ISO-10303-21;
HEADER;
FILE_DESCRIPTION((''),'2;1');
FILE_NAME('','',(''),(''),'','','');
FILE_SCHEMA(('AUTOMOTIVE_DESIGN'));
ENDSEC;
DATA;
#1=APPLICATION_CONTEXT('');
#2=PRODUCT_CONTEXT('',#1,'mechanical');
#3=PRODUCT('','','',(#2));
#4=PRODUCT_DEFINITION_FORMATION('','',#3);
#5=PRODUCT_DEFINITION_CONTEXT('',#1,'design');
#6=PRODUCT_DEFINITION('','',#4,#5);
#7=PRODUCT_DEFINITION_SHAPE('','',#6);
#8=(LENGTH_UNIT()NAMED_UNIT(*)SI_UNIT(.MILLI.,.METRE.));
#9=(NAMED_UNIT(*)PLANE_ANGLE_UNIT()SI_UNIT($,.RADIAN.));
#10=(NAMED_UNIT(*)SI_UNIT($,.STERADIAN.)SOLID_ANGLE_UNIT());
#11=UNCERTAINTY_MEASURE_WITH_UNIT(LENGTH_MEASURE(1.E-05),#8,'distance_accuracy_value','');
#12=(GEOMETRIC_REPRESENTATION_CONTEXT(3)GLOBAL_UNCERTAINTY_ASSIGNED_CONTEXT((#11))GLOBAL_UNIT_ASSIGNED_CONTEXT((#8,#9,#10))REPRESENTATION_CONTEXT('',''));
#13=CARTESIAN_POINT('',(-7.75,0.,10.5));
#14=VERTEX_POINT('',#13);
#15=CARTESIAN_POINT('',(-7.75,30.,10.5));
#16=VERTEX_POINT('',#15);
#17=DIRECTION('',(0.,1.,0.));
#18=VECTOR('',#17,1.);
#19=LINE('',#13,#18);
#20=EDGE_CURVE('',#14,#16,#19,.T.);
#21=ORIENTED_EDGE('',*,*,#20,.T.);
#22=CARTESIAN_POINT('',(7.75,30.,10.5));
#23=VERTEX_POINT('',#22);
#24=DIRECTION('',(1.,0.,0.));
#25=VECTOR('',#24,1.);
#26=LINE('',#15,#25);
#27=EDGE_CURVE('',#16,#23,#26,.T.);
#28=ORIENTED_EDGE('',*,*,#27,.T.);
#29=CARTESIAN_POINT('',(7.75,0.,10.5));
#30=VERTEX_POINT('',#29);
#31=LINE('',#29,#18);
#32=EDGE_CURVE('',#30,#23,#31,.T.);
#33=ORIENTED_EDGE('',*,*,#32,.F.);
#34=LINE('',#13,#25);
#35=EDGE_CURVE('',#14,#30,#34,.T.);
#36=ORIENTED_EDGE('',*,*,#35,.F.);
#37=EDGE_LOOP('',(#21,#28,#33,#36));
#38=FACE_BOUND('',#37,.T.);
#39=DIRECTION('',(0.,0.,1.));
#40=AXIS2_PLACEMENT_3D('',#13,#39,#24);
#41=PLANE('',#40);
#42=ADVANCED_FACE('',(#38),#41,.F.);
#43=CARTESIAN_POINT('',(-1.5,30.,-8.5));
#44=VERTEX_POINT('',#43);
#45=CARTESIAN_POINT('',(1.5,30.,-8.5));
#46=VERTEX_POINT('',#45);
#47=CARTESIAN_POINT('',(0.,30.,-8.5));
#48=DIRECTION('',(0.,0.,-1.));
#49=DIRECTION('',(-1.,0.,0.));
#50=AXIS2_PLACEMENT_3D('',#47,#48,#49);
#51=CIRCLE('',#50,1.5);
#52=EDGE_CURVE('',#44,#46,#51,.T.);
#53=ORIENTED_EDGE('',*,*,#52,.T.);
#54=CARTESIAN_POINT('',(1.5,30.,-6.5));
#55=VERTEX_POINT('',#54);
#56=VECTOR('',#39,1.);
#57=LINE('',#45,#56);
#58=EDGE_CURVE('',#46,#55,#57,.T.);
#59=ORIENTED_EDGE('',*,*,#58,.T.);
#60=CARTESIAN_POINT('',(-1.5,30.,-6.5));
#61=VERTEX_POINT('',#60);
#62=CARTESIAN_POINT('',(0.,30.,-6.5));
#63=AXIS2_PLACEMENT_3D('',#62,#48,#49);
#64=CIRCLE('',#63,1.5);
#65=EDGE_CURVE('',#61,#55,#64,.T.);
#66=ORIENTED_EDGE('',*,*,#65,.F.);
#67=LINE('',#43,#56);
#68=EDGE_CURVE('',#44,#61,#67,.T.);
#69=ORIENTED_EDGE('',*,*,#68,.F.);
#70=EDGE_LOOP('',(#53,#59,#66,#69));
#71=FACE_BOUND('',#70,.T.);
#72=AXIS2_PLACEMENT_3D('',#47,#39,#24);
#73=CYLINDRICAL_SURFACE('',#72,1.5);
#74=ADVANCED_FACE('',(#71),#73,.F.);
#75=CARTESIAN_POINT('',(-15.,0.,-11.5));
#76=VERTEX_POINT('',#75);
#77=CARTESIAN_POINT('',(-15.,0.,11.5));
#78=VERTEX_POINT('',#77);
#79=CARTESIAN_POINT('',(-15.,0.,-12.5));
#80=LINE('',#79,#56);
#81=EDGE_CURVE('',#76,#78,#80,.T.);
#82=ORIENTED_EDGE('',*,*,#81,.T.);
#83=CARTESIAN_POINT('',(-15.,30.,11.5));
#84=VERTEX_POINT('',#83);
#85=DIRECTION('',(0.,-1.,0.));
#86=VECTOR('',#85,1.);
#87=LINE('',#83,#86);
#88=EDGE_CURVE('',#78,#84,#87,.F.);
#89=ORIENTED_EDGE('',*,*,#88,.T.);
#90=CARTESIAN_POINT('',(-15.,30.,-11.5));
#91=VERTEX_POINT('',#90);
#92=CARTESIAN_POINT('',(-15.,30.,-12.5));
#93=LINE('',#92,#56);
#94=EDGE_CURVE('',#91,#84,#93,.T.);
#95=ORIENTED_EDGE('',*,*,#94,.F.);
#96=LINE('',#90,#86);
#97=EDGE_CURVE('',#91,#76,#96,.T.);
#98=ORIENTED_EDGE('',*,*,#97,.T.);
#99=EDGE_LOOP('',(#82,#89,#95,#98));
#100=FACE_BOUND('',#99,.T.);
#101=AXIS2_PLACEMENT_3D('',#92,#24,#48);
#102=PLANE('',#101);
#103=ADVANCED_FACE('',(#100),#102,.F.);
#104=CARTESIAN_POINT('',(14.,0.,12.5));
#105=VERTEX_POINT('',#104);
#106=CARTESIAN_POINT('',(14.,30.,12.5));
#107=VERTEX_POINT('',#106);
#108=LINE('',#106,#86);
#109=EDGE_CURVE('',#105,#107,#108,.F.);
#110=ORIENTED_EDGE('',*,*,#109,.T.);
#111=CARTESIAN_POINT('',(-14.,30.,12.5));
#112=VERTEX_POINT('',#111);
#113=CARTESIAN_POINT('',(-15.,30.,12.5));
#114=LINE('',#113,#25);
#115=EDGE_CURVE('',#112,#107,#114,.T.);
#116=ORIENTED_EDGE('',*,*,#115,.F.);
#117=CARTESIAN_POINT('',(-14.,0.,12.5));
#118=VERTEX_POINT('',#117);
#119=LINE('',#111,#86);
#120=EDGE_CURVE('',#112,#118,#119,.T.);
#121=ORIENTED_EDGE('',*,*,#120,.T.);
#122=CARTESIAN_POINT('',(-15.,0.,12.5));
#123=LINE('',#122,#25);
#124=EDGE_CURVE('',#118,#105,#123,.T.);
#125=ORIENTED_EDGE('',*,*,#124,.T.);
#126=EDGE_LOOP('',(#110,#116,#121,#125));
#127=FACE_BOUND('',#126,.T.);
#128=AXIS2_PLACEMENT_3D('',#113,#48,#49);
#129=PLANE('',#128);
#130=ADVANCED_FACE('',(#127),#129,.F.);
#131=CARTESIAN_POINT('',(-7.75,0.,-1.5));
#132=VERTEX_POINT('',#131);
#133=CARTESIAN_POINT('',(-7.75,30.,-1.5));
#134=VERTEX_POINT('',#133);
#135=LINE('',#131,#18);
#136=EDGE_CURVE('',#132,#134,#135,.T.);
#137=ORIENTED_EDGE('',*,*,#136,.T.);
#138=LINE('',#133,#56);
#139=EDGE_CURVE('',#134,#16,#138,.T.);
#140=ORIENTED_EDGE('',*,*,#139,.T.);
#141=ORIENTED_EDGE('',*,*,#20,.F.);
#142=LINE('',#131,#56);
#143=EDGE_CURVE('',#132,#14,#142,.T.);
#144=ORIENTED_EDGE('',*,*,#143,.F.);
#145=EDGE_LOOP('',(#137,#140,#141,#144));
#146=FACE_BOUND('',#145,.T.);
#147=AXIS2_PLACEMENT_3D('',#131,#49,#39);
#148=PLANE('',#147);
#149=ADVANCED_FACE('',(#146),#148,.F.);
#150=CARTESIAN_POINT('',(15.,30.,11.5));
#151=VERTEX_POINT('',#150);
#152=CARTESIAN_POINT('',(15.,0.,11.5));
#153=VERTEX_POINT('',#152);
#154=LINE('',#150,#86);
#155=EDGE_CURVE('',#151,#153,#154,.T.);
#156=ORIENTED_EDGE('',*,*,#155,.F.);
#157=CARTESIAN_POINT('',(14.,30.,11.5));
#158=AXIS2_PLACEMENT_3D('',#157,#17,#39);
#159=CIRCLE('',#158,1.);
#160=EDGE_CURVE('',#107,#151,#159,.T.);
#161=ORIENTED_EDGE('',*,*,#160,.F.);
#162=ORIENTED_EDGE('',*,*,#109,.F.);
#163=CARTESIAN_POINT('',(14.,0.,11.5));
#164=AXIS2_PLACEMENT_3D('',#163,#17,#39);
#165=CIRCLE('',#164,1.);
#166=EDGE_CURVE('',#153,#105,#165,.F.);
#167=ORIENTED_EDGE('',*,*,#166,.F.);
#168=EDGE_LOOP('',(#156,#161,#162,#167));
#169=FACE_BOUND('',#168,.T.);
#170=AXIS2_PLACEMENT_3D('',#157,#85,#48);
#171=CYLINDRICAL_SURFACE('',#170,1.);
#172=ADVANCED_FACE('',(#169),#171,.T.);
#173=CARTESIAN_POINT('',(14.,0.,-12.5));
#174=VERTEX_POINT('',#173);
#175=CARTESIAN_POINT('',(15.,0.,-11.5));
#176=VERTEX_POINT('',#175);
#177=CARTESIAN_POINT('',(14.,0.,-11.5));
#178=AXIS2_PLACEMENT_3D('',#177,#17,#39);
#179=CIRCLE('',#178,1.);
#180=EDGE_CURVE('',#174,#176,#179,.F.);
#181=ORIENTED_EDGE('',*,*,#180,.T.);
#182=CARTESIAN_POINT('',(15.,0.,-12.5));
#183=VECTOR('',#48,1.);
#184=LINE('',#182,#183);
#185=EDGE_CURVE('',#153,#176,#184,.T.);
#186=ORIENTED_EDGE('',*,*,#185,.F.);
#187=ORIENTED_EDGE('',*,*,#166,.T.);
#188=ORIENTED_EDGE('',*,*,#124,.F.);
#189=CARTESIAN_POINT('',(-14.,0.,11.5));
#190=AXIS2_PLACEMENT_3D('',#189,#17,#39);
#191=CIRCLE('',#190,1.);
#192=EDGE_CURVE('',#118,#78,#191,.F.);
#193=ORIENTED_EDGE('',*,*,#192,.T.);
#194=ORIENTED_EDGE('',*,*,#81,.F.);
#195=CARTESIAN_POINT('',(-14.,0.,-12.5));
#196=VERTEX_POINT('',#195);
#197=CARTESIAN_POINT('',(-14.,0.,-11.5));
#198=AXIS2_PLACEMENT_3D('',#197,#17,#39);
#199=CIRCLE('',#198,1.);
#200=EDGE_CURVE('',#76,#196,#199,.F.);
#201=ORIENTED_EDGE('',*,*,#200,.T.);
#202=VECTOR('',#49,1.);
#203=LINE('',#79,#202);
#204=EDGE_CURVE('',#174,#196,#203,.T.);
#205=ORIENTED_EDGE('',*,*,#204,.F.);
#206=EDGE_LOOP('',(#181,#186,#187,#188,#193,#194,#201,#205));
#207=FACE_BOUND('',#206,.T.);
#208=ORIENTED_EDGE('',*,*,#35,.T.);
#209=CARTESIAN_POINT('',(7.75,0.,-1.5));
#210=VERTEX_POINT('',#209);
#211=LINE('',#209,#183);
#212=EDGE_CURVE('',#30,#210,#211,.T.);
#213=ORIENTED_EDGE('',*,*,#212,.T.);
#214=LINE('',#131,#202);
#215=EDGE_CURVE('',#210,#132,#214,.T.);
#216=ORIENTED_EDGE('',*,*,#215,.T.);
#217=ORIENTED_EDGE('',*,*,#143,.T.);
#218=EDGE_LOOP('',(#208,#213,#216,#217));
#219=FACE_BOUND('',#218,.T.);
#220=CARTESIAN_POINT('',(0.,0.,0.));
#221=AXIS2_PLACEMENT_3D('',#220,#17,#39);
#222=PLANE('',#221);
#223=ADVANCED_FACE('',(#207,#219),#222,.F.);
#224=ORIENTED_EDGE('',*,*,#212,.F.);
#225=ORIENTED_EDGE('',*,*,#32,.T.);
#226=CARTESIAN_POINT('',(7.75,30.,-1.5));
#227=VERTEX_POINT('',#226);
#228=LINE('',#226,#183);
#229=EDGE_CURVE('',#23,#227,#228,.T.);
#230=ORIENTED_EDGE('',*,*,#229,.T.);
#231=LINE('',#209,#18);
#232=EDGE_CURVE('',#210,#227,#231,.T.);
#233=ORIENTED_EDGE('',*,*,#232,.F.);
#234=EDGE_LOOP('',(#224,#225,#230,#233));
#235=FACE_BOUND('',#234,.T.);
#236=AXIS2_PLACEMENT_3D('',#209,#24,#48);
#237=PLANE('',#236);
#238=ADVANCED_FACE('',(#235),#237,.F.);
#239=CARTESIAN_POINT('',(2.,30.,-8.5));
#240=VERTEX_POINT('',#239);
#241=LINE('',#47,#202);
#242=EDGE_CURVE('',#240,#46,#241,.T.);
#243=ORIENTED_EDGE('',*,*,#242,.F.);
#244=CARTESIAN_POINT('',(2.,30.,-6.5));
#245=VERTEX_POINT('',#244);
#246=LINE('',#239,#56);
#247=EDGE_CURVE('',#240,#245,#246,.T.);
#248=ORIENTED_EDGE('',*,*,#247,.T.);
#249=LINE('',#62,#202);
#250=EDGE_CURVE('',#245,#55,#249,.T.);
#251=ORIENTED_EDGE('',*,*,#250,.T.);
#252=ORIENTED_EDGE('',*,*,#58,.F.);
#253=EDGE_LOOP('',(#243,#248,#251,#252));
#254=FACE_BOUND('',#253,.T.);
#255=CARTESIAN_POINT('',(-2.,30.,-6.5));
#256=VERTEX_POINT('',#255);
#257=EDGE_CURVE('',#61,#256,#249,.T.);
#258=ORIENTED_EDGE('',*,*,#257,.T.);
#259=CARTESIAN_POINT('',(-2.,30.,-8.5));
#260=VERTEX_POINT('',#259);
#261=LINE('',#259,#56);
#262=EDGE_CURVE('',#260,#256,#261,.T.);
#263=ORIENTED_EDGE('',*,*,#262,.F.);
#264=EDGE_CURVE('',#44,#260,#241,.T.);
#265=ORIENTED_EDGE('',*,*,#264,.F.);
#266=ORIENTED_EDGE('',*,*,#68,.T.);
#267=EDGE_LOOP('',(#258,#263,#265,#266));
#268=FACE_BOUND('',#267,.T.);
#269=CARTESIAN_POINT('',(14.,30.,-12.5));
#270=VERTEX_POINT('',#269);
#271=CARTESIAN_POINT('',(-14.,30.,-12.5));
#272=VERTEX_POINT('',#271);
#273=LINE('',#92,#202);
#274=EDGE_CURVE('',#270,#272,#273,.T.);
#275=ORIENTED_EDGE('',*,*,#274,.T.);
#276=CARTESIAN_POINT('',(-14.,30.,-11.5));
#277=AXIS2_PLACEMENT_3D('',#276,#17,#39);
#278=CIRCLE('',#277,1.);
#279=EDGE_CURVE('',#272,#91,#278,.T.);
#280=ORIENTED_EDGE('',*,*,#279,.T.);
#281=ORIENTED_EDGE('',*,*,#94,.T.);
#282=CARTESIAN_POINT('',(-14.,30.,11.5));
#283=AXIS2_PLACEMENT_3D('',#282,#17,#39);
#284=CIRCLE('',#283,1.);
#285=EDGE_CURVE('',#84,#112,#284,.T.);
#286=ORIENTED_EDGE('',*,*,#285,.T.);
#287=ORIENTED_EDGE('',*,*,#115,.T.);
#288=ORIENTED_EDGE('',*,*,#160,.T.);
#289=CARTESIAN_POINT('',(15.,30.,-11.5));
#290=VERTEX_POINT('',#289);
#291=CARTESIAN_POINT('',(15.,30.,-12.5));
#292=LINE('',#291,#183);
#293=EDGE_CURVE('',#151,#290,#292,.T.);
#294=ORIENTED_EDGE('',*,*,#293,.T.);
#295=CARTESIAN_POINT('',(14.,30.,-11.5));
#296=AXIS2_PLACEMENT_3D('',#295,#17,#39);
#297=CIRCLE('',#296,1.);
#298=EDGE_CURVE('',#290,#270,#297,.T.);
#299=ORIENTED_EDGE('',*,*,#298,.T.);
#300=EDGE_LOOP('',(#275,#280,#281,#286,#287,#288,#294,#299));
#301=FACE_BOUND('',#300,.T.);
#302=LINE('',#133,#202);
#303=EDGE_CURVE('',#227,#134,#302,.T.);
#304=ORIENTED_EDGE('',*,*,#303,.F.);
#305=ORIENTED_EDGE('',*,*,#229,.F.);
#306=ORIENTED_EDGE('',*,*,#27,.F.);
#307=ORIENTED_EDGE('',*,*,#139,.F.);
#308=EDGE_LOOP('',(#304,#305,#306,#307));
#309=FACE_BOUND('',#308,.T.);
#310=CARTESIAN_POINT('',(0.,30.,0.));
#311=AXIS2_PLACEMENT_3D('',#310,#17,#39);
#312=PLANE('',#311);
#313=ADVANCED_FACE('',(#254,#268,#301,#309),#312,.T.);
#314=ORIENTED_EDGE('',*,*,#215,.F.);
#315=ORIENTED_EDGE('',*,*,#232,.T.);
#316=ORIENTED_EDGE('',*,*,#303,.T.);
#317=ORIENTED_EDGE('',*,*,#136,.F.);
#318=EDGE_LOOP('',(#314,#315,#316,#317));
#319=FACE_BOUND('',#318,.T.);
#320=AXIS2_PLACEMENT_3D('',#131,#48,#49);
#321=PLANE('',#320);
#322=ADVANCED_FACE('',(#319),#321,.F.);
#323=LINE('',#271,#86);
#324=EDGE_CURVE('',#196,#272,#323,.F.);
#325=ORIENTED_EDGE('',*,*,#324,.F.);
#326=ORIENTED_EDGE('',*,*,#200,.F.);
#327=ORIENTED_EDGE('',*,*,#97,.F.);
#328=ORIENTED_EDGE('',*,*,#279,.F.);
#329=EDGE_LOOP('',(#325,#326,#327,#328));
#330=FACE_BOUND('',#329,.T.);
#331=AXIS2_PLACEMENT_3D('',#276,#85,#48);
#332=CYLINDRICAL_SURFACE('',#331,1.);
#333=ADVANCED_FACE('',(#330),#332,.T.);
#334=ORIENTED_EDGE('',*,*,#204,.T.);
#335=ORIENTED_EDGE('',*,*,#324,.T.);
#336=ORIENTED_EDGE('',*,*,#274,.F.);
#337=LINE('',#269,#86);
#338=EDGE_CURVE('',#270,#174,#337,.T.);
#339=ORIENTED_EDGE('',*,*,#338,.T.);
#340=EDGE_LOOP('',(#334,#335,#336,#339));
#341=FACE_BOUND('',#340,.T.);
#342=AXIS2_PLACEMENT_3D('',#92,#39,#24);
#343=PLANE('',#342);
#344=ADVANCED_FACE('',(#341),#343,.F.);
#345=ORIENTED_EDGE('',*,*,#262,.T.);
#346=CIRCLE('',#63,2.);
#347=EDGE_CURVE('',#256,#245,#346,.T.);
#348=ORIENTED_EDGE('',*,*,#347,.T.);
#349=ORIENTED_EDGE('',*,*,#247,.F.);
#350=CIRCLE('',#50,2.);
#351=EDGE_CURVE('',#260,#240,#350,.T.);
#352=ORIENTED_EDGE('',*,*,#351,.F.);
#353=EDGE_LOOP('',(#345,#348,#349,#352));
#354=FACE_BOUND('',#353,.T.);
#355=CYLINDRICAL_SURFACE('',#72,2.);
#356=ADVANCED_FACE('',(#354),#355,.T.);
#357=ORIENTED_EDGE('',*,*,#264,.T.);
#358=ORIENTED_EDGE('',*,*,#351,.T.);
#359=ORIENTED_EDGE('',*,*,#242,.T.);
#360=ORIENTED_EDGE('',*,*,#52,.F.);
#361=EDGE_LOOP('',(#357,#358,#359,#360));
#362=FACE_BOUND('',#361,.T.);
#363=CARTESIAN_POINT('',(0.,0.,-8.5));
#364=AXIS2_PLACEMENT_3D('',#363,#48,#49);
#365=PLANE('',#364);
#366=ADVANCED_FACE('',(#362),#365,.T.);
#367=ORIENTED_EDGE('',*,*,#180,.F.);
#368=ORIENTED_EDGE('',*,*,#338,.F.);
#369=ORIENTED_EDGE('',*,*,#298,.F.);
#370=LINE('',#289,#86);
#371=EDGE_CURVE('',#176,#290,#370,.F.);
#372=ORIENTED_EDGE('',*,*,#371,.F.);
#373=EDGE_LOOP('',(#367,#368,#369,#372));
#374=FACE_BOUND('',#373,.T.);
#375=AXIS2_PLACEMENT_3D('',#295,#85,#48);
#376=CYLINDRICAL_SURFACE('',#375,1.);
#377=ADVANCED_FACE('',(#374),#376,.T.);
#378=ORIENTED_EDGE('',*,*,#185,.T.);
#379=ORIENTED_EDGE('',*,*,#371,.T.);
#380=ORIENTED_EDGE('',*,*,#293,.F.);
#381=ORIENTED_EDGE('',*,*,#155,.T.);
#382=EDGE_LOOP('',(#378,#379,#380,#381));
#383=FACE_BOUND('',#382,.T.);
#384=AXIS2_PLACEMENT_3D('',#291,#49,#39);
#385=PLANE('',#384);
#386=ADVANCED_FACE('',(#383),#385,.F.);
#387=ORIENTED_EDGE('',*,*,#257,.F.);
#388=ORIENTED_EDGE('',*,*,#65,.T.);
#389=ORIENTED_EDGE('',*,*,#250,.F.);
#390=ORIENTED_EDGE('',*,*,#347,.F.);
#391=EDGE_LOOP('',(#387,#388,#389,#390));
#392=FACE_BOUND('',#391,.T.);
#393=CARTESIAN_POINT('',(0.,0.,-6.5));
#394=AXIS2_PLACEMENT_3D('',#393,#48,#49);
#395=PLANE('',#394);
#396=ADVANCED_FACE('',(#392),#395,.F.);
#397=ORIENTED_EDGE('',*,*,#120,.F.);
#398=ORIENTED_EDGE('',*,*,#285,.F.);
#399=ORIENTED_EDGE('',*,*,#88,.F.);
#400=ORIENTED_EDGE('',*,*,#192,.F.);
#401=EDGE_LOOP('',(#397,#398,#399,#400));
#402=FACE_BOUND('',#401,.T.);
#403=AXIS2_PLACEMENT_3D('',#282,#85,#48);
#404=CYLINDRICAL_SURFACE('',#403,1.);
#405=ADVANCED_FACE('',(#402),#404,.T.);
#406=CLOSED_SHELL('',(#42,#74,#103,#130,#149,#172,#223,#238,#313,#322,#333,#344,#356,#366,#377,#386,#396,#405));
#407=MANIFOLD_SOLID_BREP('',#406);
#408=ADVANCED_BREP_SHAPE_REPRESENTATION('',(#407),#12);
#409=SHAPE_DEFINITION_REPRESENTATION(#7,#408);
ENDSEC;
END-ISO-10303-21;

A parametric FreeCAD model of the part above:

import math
import FreeCAD as App
import Part
import Sketcher
Q = App.Units.Quantity


def edges_at(feature, points):
    """Names of the edges that pass closest to the given points."""
    edges = feature.Shape.Edges
    near = lambda p: min(range(len(edges)), key=lambda i: edges[i].distToShape(Part.Vertex(*p))[0])
    return sorted({f"Edge{near(p) + 1}" for p in points})

doc = App.newDocument("Part")
body = doc.addObject("PartDesign::Body", "Body")

sketch1 = body.newObject("Sketcher::SketchObject", "Sketch")
sketch1.AttachmentSupport = (doc.getObject("XZ_Plane"), [""])
sketch1.MapMode = "FlatFace"
sketch1.addGeometry(Part.LineSegment(App.Vector(-15, -12, 0), App.Vector(-15, 12, 0)), False)
sketch1.addGeometry(Part.LineSegment(App.Vector(-15, 12, 0), App.Vector(15, 12, 0)), False)
sketch1.addGeometry(Part.LineSegment(App.Vector(15, 12, 0), App.Vector(15, -12, 0)), False)
sketch1.addGeometry(Part.LineSegment(App.Vector(15, -12, 0), App.Vector(-15, -12, 0)), False)
sketch1.addConstraint(Sketcher.Constraint("Coincident", 0, 2, 1, 1))
sketch1.addConstraint(Sketcher.Constraint("Coincident", 1, 2, 2, 1))
sketch1.addConstraint(Sketcher.Constraint("Coincident", 2, 2, 3, 1))
sketch1.addConstraint(Sketcher.Constraint("Coincident", 3, 2, 0, 1))
sketch1.addConstraint(Sketcher.Constraint("Vertical", 0))
sketch1.addConstraint(Sketcher.Constraint("Horizontal", 1))
sketch1.addConstraint(Sketcher.Constraint("Vertical", 2))
sketch1.addConstraint(Sketcher.Constraint("Horizontal", 3))
sketch1.addConstraint(Sketcher.Constraint("Symmetric", 0, 2, 2, 2, -1, 1))
sketch1.addConstraint(Sketcher.Constraint("DistanceX", 1, 1, 1, 2, Q("30 mm")))
sketch1.addConstraint(Sketcher.Constraint("DistanceY", 0, 1, 0, 2, Q("25 mm")))
pad1 = body.newObject("PartDesign::Pad", "Pad")
pad1.Profile = sketch1
pad1.Length = 30
pad1.Reversed = True

sketch2 = body.newObject("Sketcher::SketchObject", "Sketch001")
sketch2.AttachmentSupport = (doc.getObject("XZ_Plane"), [""])
sketch2.MapMode = "FlatFace"
sketch2.AttachmentOffset = App.Placement(App.Vector(0, 0, -30), App.Rotation())
sketch2.addGeometry(Part.LineSegment(App.Vector(-8, -2, 0), App.Vector(-8, 10, 0)), False)
sketch2.addGeometry(Part.LineSegment(App.Vector(-8, 10, 0), App.Vector(8, 10, 0)), False)
sketch2.addGeometry(Part.LineSegment(App.Vector(8, 10, 0), App.Vector(8, -2, 0)), False)
sketch2.addGeometry(Part.LineSegment(App.Vector(8, -2, 0), App.Vector(-8, -2, 0)), False)
sketch2.addConstraint(Sketcher.Constraint("Coincident", 0, 2, 1, 1))
sketch2.addConstraint(Sketcher.Constraint("Coincident", 1, 2, 2, 1))
sketch2.addConstraint(Sketcher.Constraint("Coincident", 2, 2, 3, 1))
sketch2.addConstraint(Sketcher.Constraint("Coincident", 3, 2, 0, 1))
sketch2.addConstraint(Sketcher.Constraint("Vertical", 0))
sketch2.addConstraint(Sketcher.Constraint("Horizontal", 1))
sketch2.addConstraint(Sketcher.Constraint("Vertical", 2))
sketch2.addConstraint(Sketcher.Constraint("Horizontal", 3))
sketch2.addConstraint(Sketcher.Constraint("DistanceY", 0, 1, 0, 2, Q("12 mm")))
sketch2.addConstraint(Sketcher.Constraint("DistanceX", 1, 1, 1, 2, Q("15.5 mm")))
sketch2.addConstraint(Sketcher.Constraint("DistanceY", -1, 1, 0, 2, Q("10.5 mm")))
sketch2.addConstraint(Sketcher.Constraint("DistanceX", 0, 2, -1, 1, Q("7.75 mm")))
pocket1 = body.newObject("PartDesign::Pocket", "Pocket")
pocket1.Profile = sketch2
pocket1.Length = 30
pocket1.Reversed = True
doc.recompute()

fillet = body.newObject("PartDesign::Fillet", "Fillet")
fillet.Base = (pocket1, edges_at(pocket1, [
    (15, 15, 12.5),
    (-15, 15, 12.5),
    (-15, 15, -12.5),
    (15, 15, -12.5),
]))
fillet.Radius = 1

sketch3 = body.newObject("Sketcher::SketchObject", "Sketch002")
sketch3.AttachmentSupport = (doc.getObject("XY_Plane"), [""])
sketch3.MapMode = "FlatFace"
sketch3.AttachmentOffset = App.Placement(App.Vector(0, 0, -7.5), App.Rotation())
sketch3.addGeometry(Part.ArcOfCircle(Part.Circle(App.Vector(0, 30, 0), App.Vector(0, 0, 1), 2), math.radians(0), math.radians(180)), False)
sketch3.addGeometry(Part.LineSegment(App.Vector(2, 30, 0), App.Vector(1.5, 30, 0)), False)
sketch3.addGeometry(Part.ArcOfCircle(Part.Circle(App.Vector(0, 30, 0), App.Vector(0, 0, 1), 1.5), math.radians(0), math.radians(180)), False)
sketch3.addGeometry(Part.LineSegment(App.Vector(-1.5, 30, 0), App.Vector(-2, 30, 0)), False)
sketch3.addConstraint(Sketcher.Constraint("Coincident", 0, 1, 1, 1))
sketch3.addConstraint(Sketcher.Constraint("Coincident", 1, 2, 2, 1))
sketch3.addConstraint(Sketcher.Constraint("Coincident", 2, 2, 3, 1))
sketch3.addConstraint(Sketcher.Constraint("Coincident", 3, 2, 0, 2))
sketch3.addConstraint(Sketcher.Constraint("Horizontal", 1))
sketch3.addConstraint(Sketcher.Constraint("Horizontal", 3))
sketch3.addConstraint(Sketcher.Constraint("Coincident", 2, 3, 0, 3))
sketch3.addConstraint(Sketcher.Constraint("Symmetric", 1, 2, 2, 2, -2))
sketch3.addConstraint(Sketcher.Constraint("Horizontal", 2, 3, 0, 1))
sketch3.addConstraint(Sketcher.Constraint("Radius", 0, Q("2 mm")))
sketch3.addConstraint(Sketcher.Constraint("Radius", 2, Q("1.5 mm")))
sketch3.addConstraint(Sketcher.Constraint("DistanceY", -1, 1, 0, 3, Q("30 mm")))
pad2 = body.newObject("PartDesign::Pad", "Pad001")
pad2.Profile = sketch3
pad2.Length = 2
pad2.Midplane = True

doc.recompute()
